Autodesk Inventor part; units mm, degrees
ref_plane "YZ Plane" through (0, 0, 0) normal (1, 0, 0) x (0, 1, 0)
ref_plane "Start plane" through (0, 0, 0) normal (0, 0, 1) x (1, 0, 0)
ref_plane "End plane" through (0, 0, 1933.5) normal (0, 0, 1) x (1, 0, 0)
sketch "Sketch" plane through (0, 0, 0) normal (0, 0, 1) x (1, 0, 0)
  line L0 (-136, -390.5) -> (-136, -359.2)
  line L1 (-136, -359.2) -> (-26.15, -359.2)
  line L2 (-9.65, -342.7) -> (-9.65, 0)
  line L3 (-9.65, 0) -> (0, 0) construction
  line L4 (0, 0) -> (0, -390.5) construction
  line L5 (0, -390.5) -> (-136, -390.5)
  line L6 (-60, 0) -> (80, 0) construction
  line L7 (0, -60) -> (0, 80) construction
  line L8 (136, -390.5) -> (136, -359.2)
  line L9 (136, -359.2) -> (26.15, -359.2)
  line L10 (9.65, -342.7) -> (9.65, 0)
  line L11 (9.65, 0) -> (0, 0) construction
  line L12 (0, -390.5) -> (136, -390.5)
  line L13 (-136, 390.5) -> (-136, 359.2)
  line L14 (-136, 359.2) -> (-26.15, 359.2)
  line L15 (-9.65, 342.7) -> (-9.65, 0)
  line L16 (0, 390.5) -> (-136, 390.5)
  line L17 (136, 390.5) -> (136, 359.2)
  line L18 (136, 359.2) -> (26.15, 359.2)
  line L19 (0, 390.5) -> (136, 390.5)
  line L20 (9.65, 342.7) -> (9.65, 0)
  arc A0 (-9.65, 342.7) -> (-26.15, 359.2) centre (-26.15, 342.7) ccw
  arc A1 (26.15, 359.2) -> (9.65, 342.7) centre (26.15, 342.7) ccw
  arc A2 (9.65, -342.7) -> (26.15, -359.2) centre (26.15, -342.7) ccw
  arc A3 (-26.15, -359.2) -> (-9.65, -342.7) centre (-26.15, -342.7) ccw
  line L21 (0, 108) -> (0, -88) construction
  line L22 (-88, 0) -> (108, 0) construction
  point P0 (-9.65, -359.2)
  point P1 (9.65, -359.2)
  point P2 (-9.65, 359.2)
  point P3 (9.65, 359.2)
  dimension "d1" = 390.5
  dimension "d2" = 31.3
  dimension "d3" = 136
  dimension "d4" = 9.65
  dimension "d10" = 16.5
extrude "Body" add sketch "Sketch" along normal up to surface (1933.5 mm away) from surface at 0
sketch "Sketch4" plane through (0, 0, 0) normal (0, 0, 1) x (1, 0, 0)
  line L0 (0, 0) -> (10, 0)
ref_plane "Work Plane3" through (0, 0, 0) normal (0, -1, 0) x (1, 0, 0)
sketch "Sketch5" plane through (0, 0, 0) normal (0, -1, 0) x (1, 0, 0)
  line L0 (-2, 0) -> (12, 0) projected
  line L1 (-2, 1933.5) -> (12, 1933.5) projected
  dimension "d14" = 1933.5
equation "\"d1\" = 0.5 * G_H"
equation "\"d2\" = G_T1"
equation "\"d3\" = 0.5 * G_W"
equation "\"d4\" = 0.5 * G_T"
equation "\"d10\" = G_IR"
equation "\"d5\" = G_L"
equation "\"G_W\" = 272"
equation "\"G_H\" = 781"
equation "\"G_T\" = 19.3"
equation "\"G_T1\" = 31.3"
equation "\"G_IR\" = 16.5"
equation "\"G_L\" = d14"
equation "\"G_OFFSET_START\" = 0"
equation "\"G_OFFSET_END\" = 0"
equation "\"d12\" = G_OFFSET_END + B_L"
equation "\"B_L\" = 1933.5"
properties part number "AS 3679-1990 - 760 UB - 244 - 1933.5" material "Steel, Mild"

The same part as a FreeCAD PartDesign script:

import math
import FreeCAD as App
import Part
import Sketcher
Q = App.Units.Quantity

doc = App.newDocument("Part")
body = doc.addObject("PartDesign::Body", "Body")

# Sketch on XY plane
sketch1 = body.newObject("Sketcher::SketchObject", "Sketch")
sketch1.AttachmentSupport = (doc.getObject("XY_Plane"), [""])
sketch1.MapMode = "FlatFace"
sketch1.addGeometry(Part.LineSegment(App.Vector(-136, -359, 0), App.Vector(-136, -390, 0)), False)
sketch1.addGeometry(Part.LineSegment(App.Vector(-136, -390, 0), App.Vector(136, -390, 0)), False)
sketch1.addGeometry(Part.LineSegment(App.Vector(136, -390, 0), App.Vector(136, -359, 0)), False)
sketch1.addGeometry(Part.LineSegment(App.Vector(136, -359, 0), App.Vector(26, -359, 0)), False)
sketch1.addGeometry(Part.ArcOfCircle(Part.Circle(App.Vector(26, -343, 0), App.Vector(0, 0, 1), 16), math.radians(180), math.radians(270)), False)
sketch1.addGeometry(Part.LineSegment(App.Vector(10, -343, 0), App.Vector(10, 343, 0)), False)
sketch1.addGeometry(Part.ArcOfCircle(Part.Circle(App.Vector(26, 343, 0), App.Vector(0, 0, 1), 16), math.radians(90), math.radians(180)), False)
sketch1.addGeometry(Part.LineSegment(App.Vector(26, 359, 0), App.Vector(136, 359, 0)), False)
sketch1.addGeometry(Part.LineSegment(App.Vector(136, 359, 0), App.Vector(136, 390, 0)), False)
sketch1.addGeometry(Part.LineSegment(App.Vector(136, 390, 0), App.Vector(-136, 390, 0)), False)
sketch1.addGeometry(Part.LineSegment(App.Vector(-136, 390, 0), App.Vector(-136, 359, 0)), False)
sketch1.addGeometry(Part.LineSegment(App.Vector(-136, 359, 0), App.Vector(-26, 359, 0)), False)
sketch1.addGeometry(Part.ArcOfCircle(Part.Circle(App.Vector(-26, 343, 0), App.Vector(0, 0, 1), 16), math.radians(0), math.radians(90)), False)
sketch1.addGeometry(Part.LineSegment(App.Vector(-10, 343, 0), App.Vector(-10, -343, 0)), False)
sketch1.addGeometry(Part.ArcOfCircle(Part.Circle(App.Vector(-26, -343, 0), App.Vector(0, 0, 1), 16), math.radians(-90), math.radians(0)), False)
sketch1.addGeometry(Part.LineSegment(App.Vector(-26, -359, 0), App.Vector(-136, -359, 0)), False)
sketch1.addConstraint(Sketcher.Constraint("Coincident", 0, 2, 1, 1))
sketch1.addConstraint(Sketcher.Constraint("Coincident", 1, 2, 2, 1))
sketch1.addConstraint(Sketcher.Constraint("Coincident", 2, 2, 3, 1))
sketch1.addConstraint(Sketcher.Constraint("Tangent", 3, 2, 4, 2))
sketch1.addConstraint(Sketcher.Constraint("Tangent", 4, 1, 5, 1))
sketch1.addConstraint(Sketcher.Constraint("Tangent", 5, 2, 6, 2))
sketch1.addConstraint(Sketcher.Constraint("Tangent", 6, 1, 7, 1))
sketch1.addConstraint(Sketcher.Constraint("Coincident", 7, 2, 8, 1))
sketch1.addConstraint(Sketcher.Constraint("Coincident", 8, 2, 9, 1))
sketch1.addConstraint(Sketcher.Constraint("Coincident", 9, 2, 10, 1))
sketch1.addConstraint(Sketcher.Constraint("Coincident", 10, 2, 11, 1))
sketch1.addConstraint(Sketcher.Constraint("Tangent", 11, 2, 12, 2))
sketch1.addConstraint(Sketcher.Constraint("Tangent", 12, 1, 13, 1))
sketch1.addConstraint(Sketcher.Constraint("Tangent", 13, 2, 14, 2))
sketch1.addConstraint(Sketcher.Constraint("Tangent", 14, 1, 15, 1))
sketch1.addConstraint(Sketcher.Constraint("Coincident", 15, 2, 0, 1))
sketch1.addConstraint(Sketcher.Constraint("Vertical", 0))
sketch1.addConstraint(Sketcher.Constraint("Horizontal", 1))
sketch1.addConstraint(Sketcher.Constraint("Vertical", 2))
sketch1.addConstraint(Sketcher.Constraint("Horizontal", 3))
sketch1.addConstraint(Sketcher.Constraint("Vertical", 5))
sketch1.addConstraint(Sketcher.Constraint("Horizontal", 7))
sketch1.addConstraint(Sketcher.Constraint("Vertical", 8))
sketch1.addConstraint(Sketcher.Constraint("Horizontal", 9))
sketch1.addConstraint(Sketcher.Constraint("Vertical", 10))
sketch1.addConstraint(Sketcher.Constraint("Horizontal", 11))
sketch1.addConstraint(Sketcher.Constraint("Vertical", 13))
sketch1.addConstraint(Sketcher.Constraint("Horizontal", 15))
sketch1.addConstraint(Sketcher.Constraint("Equal", 4, 6))
sketch1.addConstraint(Sketcher.Constraint("Equal", 6, 12))
sketch1.addConstraint(Sketcher.Constraint("Equal", 12, 14))
sketch1.addConstraint(Sketcher.Constraint("Symmetric", 4, 3, 12, 3, -1, 1))
sketch1.addConstraint(Sketcher.Constraint("Symmetric", 0, 2, 8, 2, -1, 1))
sketch1.addConstraint(Sketcher.Constraint("Symmetric", 7, 2, 10, 2, -2))
sketch1.addConstraint(Sketcher.Constraint("Symmetric", 2, 2, 15, 2, -2))
sketch1.addConstraint(Sketcher.Constraint("Radius", 4, Q("16.5 mm")))
sketch1.addConstraint(Sketcher.Constraint("DistanceY", 0, 2, 0, 1, Q("31.3 mm")))
sketch1.addConstraint(Sketcher.Constraint("DistanceX", 0, 2, -1, 1, Q("136 mm")))
sketch1.addConstraint(Sketcher.Constraint("DistanceY", 0, 2, -1, 1, Q("390.5 mm")))
sketch1.addConstraint(Sketcher.Constraint("DistanceX", -1, 1, 4, 1, Q("9.65 mm")))
pad1 = body.newObject("PartDesign::Pad", "Pad")
pad1.Profile = sketch1
pad1.Length = 1933.5

doc.recompute()
